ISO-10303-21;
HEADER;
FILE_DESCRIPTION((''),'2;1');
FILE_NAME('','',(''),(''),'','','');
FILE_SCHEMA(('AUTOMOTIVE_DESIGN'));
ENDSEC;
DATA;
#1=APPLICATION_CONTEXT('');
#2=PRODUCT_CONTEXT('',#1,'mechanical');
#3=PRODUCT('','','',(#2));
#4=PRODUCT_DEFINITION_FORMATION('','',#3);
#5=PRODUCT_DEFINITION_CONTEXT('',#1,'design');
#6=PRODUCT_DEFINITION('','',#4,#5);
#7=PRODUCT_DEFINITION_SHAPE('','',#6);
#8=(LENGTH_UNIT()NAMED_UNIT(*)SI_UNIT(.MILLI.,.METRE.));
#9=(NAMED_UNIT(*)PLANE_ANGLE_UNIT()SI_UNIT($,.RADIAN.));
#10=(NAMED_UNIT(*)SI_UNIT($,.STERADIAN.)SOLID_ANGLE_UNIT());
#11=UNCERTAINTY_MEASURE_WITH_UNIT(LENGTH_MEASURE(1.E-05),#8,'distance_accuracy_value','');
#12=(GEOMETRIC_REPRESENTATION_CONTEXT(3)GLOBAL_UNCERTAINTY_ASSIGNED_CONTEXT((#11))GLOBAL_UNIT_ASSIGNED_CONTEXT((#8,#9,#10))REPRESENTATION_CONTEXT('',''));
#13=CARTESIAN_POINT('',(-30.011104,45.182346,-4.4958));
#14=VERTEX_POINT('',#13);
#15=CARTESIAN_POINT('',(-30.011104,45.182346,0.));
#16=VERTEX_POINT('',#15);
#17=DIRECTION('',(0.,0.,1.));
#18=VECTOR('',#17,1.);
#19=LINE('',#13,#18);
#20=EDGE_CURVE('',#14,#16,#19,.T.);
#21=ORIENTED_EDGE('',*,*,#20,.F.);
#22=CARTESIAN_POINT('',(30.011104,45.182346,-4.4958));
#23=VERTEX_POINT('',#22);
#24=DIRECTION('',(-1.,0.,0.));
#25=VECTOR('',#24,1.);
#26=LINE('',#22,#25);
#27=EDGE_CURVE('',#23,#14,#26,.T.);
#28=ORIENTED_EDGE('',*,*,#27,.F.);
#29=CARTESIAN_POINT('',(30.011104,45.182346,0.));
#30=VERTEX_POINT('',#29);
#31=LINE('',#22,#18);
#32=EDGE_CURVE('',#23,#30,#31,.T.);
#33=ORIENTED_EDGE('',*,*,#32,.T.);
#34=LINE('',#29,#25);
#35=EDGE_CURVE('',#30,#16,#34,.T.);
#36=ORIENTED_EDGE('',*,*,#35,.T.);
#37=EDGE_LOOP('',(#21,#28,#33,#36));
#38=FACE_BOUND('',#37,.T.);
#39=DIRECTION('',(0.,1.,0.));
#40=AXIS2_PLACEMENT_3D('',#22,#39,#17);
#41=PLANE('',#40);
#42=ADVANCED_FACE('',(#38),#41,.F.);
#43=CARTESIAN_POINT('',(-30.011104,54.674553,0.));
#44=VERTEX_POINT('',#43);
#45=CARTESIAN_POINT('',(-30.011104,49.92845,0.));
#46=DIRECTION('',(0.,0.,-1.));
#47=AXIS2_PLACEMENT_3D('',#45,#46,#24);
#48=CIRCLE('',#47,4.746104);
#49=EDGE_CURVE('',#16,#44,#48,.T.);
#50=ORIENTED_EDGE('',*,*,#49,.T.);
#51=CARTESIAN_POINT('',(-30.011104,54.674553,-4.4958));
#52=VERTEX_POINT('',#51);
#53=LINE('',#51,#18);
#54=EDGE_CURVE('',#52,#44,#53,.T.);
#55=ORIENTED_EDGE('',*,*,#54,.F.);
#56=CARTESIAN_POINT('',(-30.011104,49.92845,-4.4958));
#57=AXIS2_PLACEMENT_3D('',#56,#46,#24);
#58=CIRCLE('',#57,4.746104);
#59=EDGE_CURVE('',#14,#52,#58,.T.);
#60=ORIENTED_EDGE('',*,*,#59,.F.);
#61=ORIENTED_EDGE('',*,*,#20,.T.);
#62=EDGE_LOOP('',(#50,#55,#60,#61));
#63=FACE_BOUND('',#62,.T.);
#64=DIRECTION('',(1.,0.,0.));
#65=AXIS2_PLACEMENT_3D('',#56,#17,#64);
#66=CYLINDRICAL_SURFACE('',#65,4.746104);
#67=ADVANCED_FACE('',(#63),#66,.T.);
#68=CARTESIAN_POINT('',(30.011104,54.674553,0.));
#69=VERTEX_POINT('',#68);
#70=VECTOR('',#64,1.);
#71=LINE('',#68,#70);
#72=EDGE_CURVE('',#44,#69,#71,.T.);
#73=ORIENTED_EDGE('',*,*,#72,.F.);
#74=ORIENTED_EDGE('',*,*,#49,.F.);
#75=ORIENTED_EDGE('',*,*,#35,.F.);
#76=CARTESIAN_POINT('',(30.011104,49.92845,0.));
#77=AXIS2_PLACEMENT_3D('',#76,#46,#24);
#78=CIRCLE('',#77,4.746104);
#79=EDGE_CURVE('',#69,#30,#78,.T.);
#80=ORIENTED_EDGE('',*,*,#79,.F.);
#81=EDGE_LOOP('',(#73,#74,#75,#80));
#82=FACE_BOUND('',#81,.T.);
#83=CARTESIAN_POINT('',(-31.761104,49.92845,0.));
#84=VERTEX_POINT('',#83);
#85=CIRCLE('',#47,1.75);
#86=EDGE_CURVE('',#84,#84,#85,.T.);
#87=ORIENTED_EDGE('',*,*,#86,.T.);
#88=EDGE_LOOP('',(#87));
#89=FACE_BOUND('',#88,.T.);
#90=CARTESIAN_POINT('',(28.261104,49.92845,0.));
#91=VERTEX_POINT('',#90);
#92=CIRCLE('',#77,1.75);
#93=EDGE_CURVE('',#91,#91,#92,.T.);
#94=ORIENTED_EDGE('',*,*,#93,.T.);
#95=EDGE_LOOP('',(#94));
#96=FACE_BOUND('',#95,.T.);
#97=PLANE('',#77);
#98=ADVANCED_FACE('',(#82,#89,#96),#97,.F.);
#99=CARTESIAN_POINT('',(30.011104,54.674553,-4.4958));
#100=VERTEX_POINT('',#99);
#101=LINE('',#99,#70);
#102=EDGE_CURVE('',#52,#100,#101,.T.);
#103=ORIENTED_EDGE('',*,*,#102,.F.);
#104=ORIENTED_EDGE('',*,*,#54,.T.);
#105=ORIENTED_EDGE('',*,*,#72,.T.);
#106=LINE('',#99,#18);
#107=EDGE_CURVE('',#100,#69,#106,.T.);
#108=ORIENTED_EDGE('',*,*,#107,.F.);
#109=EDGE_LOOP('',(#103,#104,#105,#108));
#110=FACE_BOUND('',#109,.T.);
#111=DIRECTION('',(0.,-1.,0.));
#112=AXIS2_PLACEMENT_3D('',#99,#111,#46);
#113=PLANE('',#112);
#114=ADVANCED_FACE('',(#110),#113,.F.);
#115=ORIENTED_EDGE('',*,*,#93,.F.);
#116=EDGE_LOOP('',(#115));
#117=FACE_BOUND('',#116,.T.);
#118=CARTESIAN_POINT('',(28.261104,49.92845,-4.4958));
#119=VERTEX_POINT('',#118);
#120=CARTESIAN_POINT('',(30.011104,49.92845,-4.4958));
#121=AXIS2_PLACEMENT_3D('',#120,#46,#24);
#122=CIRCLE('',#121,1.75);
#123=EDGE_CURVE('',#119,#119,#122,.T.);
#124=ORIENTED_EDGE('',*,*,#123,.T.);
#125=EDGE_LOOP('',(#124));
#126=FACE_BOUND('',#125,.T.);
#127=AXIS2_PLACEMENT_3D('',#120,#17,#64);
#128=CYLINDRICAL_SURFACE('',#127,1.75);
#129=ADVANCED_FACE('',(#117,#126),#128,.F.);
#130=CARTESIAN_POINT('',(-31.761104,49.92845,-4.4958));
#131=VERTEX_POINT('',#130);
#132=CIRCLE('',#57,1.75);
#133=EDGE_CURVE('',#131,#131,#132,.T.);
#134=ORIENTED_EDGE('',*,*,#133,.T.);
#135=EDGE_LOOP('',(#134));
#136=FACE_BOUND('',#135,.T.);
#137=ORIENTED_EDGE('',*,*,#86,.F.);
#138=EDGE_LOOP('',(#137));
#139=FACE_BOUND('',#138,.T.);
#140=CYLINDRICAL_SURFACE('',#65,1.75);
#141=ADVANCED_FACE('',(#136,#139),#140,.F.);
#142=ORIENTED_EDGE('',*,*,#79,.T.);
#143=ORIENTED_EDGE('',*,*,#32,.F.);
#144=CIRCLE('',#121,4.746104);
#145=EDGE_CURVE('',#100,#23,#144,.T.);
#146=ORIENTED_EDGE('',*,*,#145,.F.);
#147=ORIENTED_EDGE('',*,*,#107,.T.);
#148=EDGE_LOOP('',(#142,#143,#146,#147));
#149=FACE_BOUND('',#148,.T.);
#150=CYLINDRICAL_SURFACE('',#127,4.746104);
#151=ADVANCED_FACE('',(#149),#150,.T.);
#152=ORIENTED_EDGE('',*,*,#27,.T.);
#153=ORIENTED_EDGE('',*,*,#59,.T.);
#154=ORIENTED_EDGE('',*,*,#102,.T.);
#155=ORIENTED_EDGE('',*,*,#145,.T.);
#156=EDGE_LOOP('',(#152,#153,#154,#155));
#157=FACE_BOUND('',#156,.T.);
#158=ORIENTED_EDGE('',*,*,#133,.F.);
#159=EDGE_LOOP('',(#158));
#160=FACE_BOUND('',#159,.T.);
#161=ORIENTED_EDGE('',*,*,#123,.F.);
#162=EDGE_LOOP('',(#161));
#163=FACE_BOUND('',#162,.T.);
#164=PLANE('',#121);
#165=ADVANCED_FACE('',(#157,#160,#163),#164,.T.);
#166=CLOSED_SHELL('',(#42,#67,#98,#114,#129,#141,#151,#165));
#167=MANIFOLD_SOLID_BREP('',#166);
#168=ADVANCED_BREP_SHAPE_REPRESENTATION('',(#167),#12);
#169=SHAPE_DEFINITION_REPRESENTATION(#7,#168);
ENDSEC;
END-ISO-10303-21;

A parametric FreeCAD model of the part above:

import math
import FreeCAD as App
import Part
import Sketcher

V = App.Vector
Q = App.Units.Quantity

doc = App.newDocument("Part")
body = doc.addObject("PartDesign::Body", "Body")

# Sketch on XY plane
sketch1 = body.newObject("Sketcher::SketchObject", "Sketch")
sketch1.AttachmentSupport = (doc.getObject("XY_Plane"), [""])
sketch1.MapMode = "FlatFace"
sketch1.addGeometry(Part.LineSegment(V(-30, 54.7, 0), V(30, 54.7, 0)), False)
sketch1.addGeometry(Part.ArcOfCircle(Part.Circle(V(30, 49.9, 0), V(0, 0, 1), 4.7), math.radians(-90), math.radians(90)), False)
sketch1.addGeometry(Part.LineSegment(V(30, 45.2, 0), V(-30, 45.2, 0)), False)
sketch1.addGeometry(Part.ArcOfCircle(Part.Circle(V(-30, 49.9, 0), V(0, 0, 1), 4.7), math.radians(90), math.radians(270)), False)
sketch1.addGeometry(Part.Circle(V(-30, 49.9, 0), V(0, 0, 1), 1.8), False)
sketch1.addGeometry(Part.Circle(V(30, 49.9, 0), V(0, 0, 1), 1.8), False)
sketch1.addConstraint(Sketcher.Constraint("Tangent", 0, 2, 1, 2))
sketch1.addConstraint(Sketcher.Constraint("Tangent", 1, 1, 2, 1))
sketch1.addConstraint(Sketcher.Constraint("Tangent", 2, 2, 3, 2))
sketch1.addConstraint(Sketcher.Constraint("Tangent", 3, 1, 0, 1))
sketch1.addConstraint(Sketcher.Constraint("Horizontal", 0))
sketch1.addConstraint(Sketcher.Constraint("Horizontal", 2))
sketch1.addConstraint(Sketcher.Constraint("Coincident", 4, 3, 3, 3))
sketch1.addConstraint(Sketcher.Constraint("Coincident", 5, 3, 1, 3))
sketch1.addConstraint(Sketcher.Constraint("Equal", 4, 5))
sketch1.addConstraint(Sketcher.Constraint("Diameter", 4, Q("3.5 mm")))
sketch1.addConstraint(Sketcher.Constraint("Radius", 1, Q("4.746104 mm")))
sketch1.addConstraint(Sketcher.Constraint("DistanceX", 0, 1, 0, 2, Q("60.022207 mm")))
sketch1.addConstraint(Sketcher.Constraint("DistanceY", -1, 1, 1, 3, Q("49.92845 mm")))
sketch1.addConstraint(Sketcher.Constraint("DistanceX", -1, 1, 1, 3, Q("30.011104 mm")))
pad1 = body.newObject("PartDesign::Pad", "Pad")
pad1.Profile = sketch1
pad1.Length = 4.4958
pad1.Reversed = True

doc.recompute()
